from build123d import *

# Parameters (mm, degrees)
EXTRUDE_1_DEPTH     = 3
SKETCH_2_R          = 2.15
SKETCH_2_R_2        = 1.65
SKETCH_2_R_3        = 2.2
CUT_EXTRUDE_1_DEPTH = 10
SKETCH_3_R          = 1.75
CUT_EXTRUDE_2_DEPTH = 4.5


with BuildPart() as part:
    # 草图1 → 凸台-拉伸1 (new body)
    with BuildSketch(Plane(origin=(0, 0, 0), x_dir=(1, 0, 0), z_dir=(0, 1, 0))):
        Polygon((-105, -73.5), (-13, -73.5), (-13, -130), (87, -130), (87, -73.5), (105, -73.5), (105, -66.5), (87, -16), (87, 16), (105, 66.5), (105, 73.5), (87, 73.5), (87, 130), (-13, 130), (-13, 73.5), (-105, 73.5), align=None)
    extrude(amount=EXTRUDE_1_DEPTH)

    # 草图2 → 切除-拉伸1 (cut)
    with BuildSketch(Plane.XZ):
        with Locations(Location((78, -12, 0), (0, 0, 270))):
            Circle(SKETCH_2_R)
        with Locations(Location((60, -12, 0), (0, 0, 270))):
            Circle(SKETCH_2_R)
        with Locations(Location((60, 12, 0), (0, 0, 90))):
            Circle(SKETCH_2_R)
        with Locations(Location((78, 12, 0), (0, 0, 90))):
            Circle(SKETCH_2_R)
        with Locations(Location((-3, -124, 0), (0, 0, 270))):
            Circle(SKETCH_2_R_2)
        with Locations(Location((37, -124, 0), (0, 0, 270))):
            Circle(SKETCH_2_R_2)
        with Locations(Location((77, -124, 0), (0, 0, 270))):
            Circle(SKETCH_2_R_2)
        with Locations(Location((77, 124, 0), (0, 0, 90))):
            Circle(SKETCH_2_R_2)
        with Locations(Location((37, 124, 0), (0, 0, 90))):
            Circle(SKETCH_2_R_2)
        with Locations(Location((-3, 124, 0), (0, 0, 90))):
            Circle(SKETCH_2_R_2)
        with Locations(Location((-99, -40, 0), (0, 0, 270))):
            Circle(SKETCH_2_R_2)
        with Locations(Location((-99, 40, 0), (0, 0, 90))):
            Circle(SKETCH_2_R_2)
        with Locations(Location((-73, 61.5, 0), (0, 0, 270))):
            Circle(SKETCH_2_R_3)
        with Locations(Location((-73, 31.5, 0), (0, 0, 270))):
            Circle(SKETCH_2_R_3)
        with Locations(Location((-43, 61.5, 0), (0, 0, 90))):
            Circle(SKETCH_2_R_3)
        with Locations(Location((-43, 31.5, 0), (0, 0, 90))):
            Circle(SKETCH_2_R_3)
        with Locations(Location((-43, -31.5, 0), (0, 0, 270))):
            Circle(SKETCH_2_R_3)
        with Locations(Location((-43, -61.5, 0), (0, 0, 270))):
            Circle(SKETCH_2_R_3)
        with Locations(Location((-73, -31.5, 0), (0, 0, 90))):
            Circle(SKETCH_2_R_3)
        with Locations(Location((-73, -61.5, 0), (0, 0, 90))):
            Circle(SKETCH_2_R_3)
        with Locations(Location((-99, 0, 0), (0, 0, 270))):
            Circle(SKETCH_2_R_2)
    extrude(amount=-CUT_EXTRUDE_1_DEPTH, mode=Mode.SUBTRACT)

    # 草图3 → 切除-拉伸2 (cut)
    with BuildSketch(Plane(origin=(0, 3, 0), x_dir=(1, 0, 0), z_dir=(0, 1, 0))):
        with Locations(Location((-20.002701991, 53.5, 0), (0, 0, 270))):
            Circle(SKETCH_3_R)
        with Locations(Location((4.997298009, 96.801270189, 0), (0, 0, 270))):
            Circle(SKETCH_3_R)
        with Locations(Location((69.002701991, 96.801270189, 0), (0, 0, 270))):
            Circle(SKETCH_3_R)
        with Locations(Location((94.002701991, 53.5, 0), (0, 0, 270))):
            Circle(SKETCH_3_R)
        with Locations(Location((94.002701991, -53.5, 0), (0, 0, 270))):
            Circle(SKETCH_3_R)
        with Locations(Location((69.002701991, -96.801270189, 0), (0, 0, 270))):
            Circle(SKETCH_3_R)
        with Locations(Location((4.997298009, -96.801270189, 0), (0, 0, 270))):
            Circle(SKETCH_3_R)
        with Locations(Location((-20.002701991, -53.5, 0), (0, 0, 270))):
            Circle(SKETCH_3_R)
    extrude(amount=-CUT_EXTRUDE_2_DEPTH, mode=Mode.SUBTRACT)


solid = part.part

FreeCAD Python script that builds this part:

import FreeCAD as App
import Part
import Sketcher

V = App.Vector


def add_polygon(sketch, points):
    """Adds a closed chain of lines whose ends are joined by coincident constraints."""
    first, n = sketch.GeometryCount, len(points)
    for a, b in zip(points, points[1:] + points[:1]):
        sketch.addGeometry(Part.LineSegment(App.Vector(*a, 0), App.Vector(*b, 0)), False)
    for i in range(n):
        sketch.addConstraint(Sketcher.Constraint("Coincident", first + i, 2, first + (i + 1) % n, 1))

doc = App.newDocument("Part")
body = doc.addObject("PartDesign::Body", "Body")

sketch1 = body.newObject("Sketcher::SketchObject", "Sketch")
sketch1.AttachmentSupport = (doc.getObject("XZ_Plane"), [""])
sketch1.MapMode = "FlatFace"
add_polygon(sketch1, [(-105, 74), (-13, 74), (-13, 130), (87, 130), (87, 74), (105, 74), (105, 66), (87, 16), (87, -16), (105, -66), (105, -74), (87, -74), (87, -130), (-13, -130), (-13, -74), (-105, -74)])
sketch1.addConstraint([
    Sketcher.Constraint("Horizontal", 0),
    Sketcher.Constraint("Vertical", 1),
    Sketcher.Constraint("Horizontal", 2),
    Sketcher.Constraint("Vertical", 3),
    Sketcher.Constraint("Horizontal", 4),
    Sketcher.Constraint("Vertical", 5),
    Sketcher.Constraint("Vertical", 7),
    Sketcher.Constraint("Vertical", 9),
    Sketcher.Constraint("Horizontal", 10),
    Sketcher.Constraint("Vertical", 11),
    Sketcher.Constraint("Horizontal", 12),
    Sketcher.Constraint("Vertical", 13),
    Sketcher.Constraint("Horizontal", 14),
    Sketcher.Constraint("Vertical", 15),
    Sketcher.Constraint("Symmetric", 4, 2, 14, 2, -1, 1),
    Sketcher.Constraint("Symmetric", 9, 2, 15, 2, -1, 1),
    Sketcher.Constraint("Symmetric", 3, 2, 10, 2, -1),
    Sketcher.Constraint("Symmetric", 1, 2, 12, 2, -1),
    Sketcher.Constraint("Vertical", 3, 2, 6, 2),
    Sketcher.Constraint("Equal", 5, 9),
    Sketcher.Constraint("Equal", 6, 8),
    Sketcher.Constraint("DistanceX", 0, 1, 0, 2, 92.0),
    Sketcher.Constraint("DistanceX", 2, 1, 2, 2, 100.0),
    Sketcher.Constraint("DistanceX", 4, 1, 4, 2, 18.0),
    Sketcher.Constraint("DistanceY", 5, 2, 5, 1, 7.0),
    Sketcher.Constraint("DistanceY", 7, 2, 7, 1, 32.0),
    Sketcher.Constraint("DistanceY", 15, 1, 15, 2, 147.0),
    Sketcher.Constraint("DistanceY", 1, 1, 1, 2, 56.5),
])
pad1 = body.newObject("PartDesign::Pad", "Pad")
pad1.Profile = sketch1
pad1.Length = 3
pad1.Reversed = True

sketch2 = body.newObject("Sketcher::SketchObject", "Sketch001")
sketch2.AttachmentSupport = (doc.getObject("XZ_Plane"), [""])
sketch2.MapMode = "FlatFace"
sketch2.addGeometry([
    Part.Circle(V(78, -12, 0), V(0, 0, 1), 2.1),
    Part.Circle(V(60, -12, 0), V(0, 0, 1), 2.1),
    Part.Circle(V(60, 12, 0), V(0, 0, 1), 2.1),
    Part.Circle(V(78, 12, 0), V(0, 0, 1), 2.1),
    Part.Circle(V(-3, -124, 0), V(0, 0, 1), 1.6),
    Part.Circle(V(37, -124, 0), V(0, 0, 1), 1.6),
    Part.Circle(V(77, -124, 0), V(0, 0, 1), 1.6),
    Part.Circle(V(77, 124, 0), V(0, 0, 1), 1.6),
    Part.Circle(V(37, 124, 0), V(0, 0, 1), 1.6),
    Part.Circle(V(-3, 124, 0), V(0, 0, 1), 1.6),
    Part.Circle(V(-99, -40, 0), V(0, 0, 1), 1.6),
    Part.Circle(V(-99, 40, 0), V(0, 0, 1), 1.6),
    Part.Circle(V(-73, 61.5, 0), V(0, 0, 1), 2.2),
    Part.Circle(V(-73, 31.5, 0), V(0, 0, 1), 2.2),
    Part.Circle(V(-43, 61.5, 0), V(0, 0, 1), 2.2),
    Part.Circle(V(-43, 31.5, 0), V(0, 0, 1), 2.2),
    Part.Circle(V(-43, -31.5, 0), V(0, 0, 1), 2.2),
    Part.Circle(V(-43, -61.5, 0), V(0, 0, 1), 2.2),
    Part.Circle(V(-73, -31.5, 0), V(0, 0, 1), 2.2),
    Part.Circle(V(-73, -61.5, 0), V(0, 0, 1), 2.2),
    Part.Circle(V(-99, 0, 0), V(0, 0, 1), 1.6),
], False)
sketch2.addConstraint([
    Sketcher.Constraint("Equal", 0, 1),
    Sketcher.Constraint("Equal", 1, 2),
    Sketcher.Constraint("Equal", 2, 3),
    Sketcher.Constraint("Equal", 4, 5),
    Sketcher.Constraint("Equal", 5, 6),
    Sketcher.Constraint("Equal", 6, 7),
    Sketcher.Constraint("Equal", 7, 8),
    Sketcher.Constraint("Equal", 8, 9),
    Sketcher.Constraint("Equal", 9, 10),
    Sketcher.Constraint("Equal", 10, 11),
    Sketcher.Constraint("Equal", 12, 13),
    Sketcher.Constraint("Equal", 13, 14),
    Sketcher.Constraint("Equal", 14, 15),
    Sketcher.Constraint("Equal", 15, 16),
    Sketcher.Constraint("Equal", 16, 17),
    Sketcher.Constraint("Equal", 17, 18),
    Sketcher.Constraint("Equal", 18, 19),
    Sketcher.Constraint("Equal", 11, 20),
    Sketcher.Constraint("Symmetric", 1, 3, 2, 3, -1),
    Sketcher.Constraint("Symmetric", 0, 3, 3, 3, -1),
    Sketcher.Constraint("Symmetric", 6, 3, 7, 3, -1),
    Sketcher.Constraint("Symmetric", 5, 3, 8, 3, -1),
    Sketcher.Constraint("Symmetric", 4, 3, 9, 3, -1),
    Sketcher.Constraint("Symmetric", 10, 3, 11, 3, -1),
    Sketcher.Constraint("Symmetric", 15, 3, 16, 3, -1),
    Sketcher.Constraint("Symmetric", 14, 3, 17, 3, -1),
    Sketcher.Constraint("Symmetric", 13, 3, 18, 3, -1),
    Sketcher.Constraint("Symmetric", 12, 3, 19, 3, -1),
    Sketcher.Constraint("PointOnObject", 20, 3, -1),
    Sketcher.Constraint("Horizontal", 0, 3, 1, 3),
    Sketcher.Constraint("Horizontal", 4, 3, 5, 3),
    Sketcher.Constraint("Horizontal", 5, 3, 6, 3),
    Sketcher.Constraint("Horizontal", 12, 3, 14, 3),
    Sketcher.Constraint("Horizontal", 13, 3, 15, 3),
    Sketcher.Constraint("Vertical", 12, 3, 13, 3),
    Sketcher.Constraint("Vertical", 14, 3, 15, 3),
    Sketcher.Constraint("Vertical", 11, 3, 20, 3),
    Sketcher.Constraint("Diameter", 0, 4.3),
    Sketcher.Constraint("Diameter", 4, 3.3),
    Sketcher.Constraint("Diameter", 12, 4.4),
    Sketcher.Constraint("DistanceX", -1, 1, 0, 3, 78.0),
    Sketcher.Constraint("DistanceY", 0, 3, -1, 1, 12.0),
    Sketcher.Constraint("DistanceX", -1, 1, 1, 3, 60.0),
    Sketcher.Constraint("DistanceX", 4, 3, -1, 1, 3.0),
    Sketcher.Constraint("DistanceY", 4, 3, -1, 1, 124.0),
    Sketcher.Constraint("DistanceX", -1, 1, 5, 3, 37.0),
    Sketcher.Constraint("DistanceX", -1, 1, 6, 3, 77.0),
    Sketcher.Constraint("DistanceX", 10, 3, -1, 1, 99.0),
    Sketcher.Constraint("DistanceY", 10, 3, -1, 1, 40.0),
    Sketcher.Constraint("DistanceX", 12, 3, -1, 1, 73.0),
    Sketcher.Constraint("DistanceX", 14, 3, -1, 1, 43.0),
    Sketcher.Constraint("DistanceY", 13, 3, 12, 3, 30.0),
    Sketcher.Constraint("DistanceY", 16, 3, 15, 3, 63.0),
])
pocket1 = body.newObject("PartDesign::Pocket", "Pocket")
pocket1.Profile = sketch2
pocket1.Length = 10

sketch3 = body.newObject("Sketcher::SketchObject", "Sketch002")
sketch3.AttachmentSupport = (doc.getObject("XZ_Plane"), [""])
sketch3.MapMode = "FlatFace"
sketch3.AttachmentOffset = App.Placement(V(0, 0, -3), App.Rotation())
sketch3.addGeometry([
    Part.Circle(V(-20, -53.5, 0), V(0, 0, 1), 1.8),
    Part.Circle(V(5, -96.8, 0), V(0, 0, 1), 1.8),
    Part.Circle(V(69, -96.8, 0), V(0, 0, 1), 1.8),
    Part.Circle(V(94, -53.5, 0), V(0, 0, 1), 1.8),
    Part.Circle(V(94, 53.5, 0), V(0, 0, 1), 1.8),
    Part.Circle(V(69, 96.8, 0), V(0, 0, 1), 1.8),
    Part.Circle(V(5, 96.8, 0), V(0, 0, 1), 1.8),
    Part.Circle(V(-20, 53.5, 0), V(0, 0, 1), 1.8),
], False)
sketch3.addConstraint([
    Sketcher.Constraint("Equal", 0, 1),
    Sketcher.Constraint("Equal", 1, 2),
    Sketcher.Constraint("Equal", 2, 3),
    Sketcher.Constraint("Equal", 3, 4),
    Sketcher.Constraint("Equal", 4, 5),
    Sketcher.Constraint("Equal", 5, 6),
    Sketcher.Constraint("Equal", 6, 7),
    Sketcher.Constraint("Symmetric", 3, 3, 4, 3, -1),
    Sketcher.Constraint("Symmetric", 2, 3, 5, 3, -1),
    Sketcher.Constraint("Symmetric", 1, 3, 6, 3, -1),
    Sketcher.Constraint("Symmetric", 0, 3, 7, 3, -1),
    Sketcher.Constraint("Horizontal", 1, 3, 2, 3),
    Sketcher.Constraint("Horizontal", 0, 3, 3, 3),
    Sketcher.Constraint("Diameter", 0, 3.5),
    Sketcher.Constraint("DistanceX", 0, 3, 1, 3, 25.0),
    Sketcher.Constraint("DistanceX", 2, 3, 3, 3, 25.0),
    Sketcher.Constraint("DistanceY", 3, 3, 4, 3, 107.0),
    Sketcher.Constraint("DistanceX", 0, 3, -1, 1, 20.002702),
    Sketcher.Constraint("DistanceX", -1, 1, 2, 3, 69.002702),
    Sketcher.Constraint("DistanceY", 1, 3, -1, 1, 96.80127),
])
pocket2 = body.newObject("PartDesign::Pocket", "Pocket001")
pocket2.Profile = sketch3
pocket2.Length = 4.5
pocket2.Reversed = True

doc.recompute()
